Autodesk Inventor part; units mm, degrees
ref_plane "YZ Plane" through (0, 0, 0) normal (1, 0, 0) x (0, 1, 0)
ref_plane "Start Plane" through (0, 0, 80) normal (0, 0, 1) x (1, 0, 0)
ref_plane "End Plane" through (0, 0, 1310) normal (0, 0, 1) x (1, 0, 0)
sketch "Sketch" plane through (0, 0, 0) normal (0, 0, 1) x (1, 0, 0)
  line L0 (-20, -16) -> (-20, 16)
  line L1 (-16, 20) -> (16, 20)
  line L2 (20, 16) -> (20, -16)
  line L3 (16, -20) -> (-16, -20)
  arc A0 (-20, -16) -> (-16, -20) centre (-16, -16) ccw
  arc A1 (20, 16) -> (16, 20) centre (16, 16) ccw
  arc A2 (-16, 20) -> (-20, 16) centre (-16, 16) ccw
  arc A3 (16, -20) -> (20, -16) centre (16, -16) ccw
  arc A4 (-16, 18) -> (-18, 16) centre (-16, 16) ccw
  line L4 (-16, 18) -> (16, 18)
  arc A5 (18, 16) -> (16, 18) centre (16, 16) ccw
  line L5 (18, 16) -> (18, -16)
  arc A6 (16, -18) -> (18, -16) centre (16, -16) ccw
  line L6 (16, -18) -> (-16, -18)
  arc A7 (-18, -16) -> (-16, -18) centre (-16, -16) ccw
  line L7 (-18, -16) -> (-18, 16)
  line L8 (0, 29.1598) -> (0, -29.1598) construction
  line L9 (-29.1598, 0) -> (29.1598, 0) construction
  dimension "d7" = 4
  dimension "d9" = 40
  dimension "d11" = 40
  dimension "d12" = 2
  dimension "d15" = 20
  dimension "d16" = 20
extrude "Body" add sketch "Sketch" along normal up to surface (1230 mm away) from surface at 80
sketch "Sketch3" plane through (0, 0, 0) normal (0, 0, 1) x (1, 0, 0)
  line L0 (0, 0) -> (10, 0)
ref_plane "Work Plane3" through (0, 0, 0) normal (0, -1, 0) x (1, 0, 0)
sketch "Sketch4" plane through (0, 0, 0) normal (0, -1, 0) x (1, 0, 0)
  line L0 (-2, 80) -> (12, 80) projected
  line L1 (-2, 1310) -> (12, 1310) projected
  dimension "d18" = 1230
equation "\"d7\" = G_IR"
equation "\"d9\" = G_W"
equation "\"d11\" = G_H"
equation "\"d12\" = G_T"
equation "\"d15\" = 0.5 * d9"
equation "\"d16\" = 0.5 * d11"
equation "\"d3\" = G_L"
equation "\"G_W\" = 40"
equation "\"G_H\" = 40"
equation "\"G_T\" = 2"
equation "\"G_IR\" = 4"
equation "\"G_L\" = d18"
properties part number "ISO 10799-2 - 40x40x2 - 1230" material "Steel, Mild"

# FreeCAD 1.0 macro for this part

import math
import FreeCAD as App
import Part
import Sketcher
from FreeCAD import Vector

doc = App.newDocument("Part")
body = doc.addObject("PartDesign::Body", "Body")

# Sketch on XY plane
sketch1 = doc.addObject("Sketcher::SketchObject", "Sketch")
body.addObject(sketch1)
sketch1.AttachmentSupport = (doc.XY_Plane, [""])
sketch1.MapMode = "FlatFace"
sketch1.AttachmentOffset = App.Placement(Vector(0, 0, 80), App.Rotation())
sketch1.addGeometry(Part.LineSegment(Vector(-20, 16, 0), Vector(-20, -16, 0)), False)
sketch1.addGeometry(Part.ArcOfCircle(Part.Circle(Vector(-16, -16, 0), Vector(0, 0, 1), 4), math.radians(180), math.radians(270)), False)
sketch1.addGeometry(Part.LineSegment(Vector(-16, -20, 0), Vector(16, -20, 0)), False)
sketch1.addGeometry(Part.ArcOfCircle(Part.Circle(Vector(16, -16, 0), Vector(0, 0, 1), 4), math.radians(-90), math.radians(0)), False)
sketch1.addGeometry(Part.LineSegment(Vector(20, -16, 0), Vector(20, 16, 0)), False)
sketch1.addGeometry(Part.ArcOfCircle(Part.Circle(Vector(16, 16, 0), Vector(0, 0, 1), 4), math.radians(0), math.radians(90)), False)
sketch1.addGeometry(Part.LineSegment(Vector(16, 20, 0), Vector(-16, 20, 0)), False)
sketch1.addGeometry(Part.ArcOfCircle(Part.Circle(Vector(-16, 16, 0), Vector(0, 0, 1), 4), math.radians(90), math.radians(180)), False)
sketch1.addGeometry(Part.ArcOfCircle(Part.Circle(Vector(-16, 16, 0), Vector(0, 0, 1), 2), math.radians(90), math.radians(180)), False)
sketch1.addGeometry(Part.LineSegment(Vector(-16, 18, 0), Vector(16, 18, 0)), False)
sketch1.addGeometry(Part.ArcOfCircle(Part.Circle(Vector(16, 16, 0), Vector(0, 0, 1), 2), math.radians(0), math.radians(90)), False)
sketch1.addGeometry(Part.LineSegment(Vector(18, 16, 0), Vector(18, -16, 0)), False)
sketch1.addGeometry(Part.ArcOfCircle(Part.Circle(Vector(16, -16, 0), Vector(0, 0, 1), 2), math.radians(-90), math.radians(0)), False)
sketch1.addGeometry(Part.LineSegment(Vector(16, -18, 0), Vector(-16, -18, 0)), False)
sketch1.addGeometry(Part.ArcOfCircle(Part.Circle(Vector(-16, -16, 0), Vector(0, 0, 1), 2), math.radians(180), math.radians(270)), False)
sketch1.addGeometry(Part.LineSegment(Vector(-18, -16, 0), Vector(-18, 16, 0)), False)
sketch1.addConstraint(Sketcher.Constraint("Tangent", 0, 2, 1, 1))
sketch1.addConstraint(Sketcher.Constraint("Tangent", 1, 2, 2, 1))
sketch1.addConstraint(Sketcher.Constraint("Tangent", 2, 2, 3, 1))
sketch1.addConstraint(Sketcher.Constraint("Tangent", 3, 2, 4, 1))
sketch1.addConstraint(Sketcher.Constraint("Tangent", 4, 2, 5, 1))
sketch1.addConstraint(Sketcher.Constraint("Tangent", 5, 2, 6, 1))
sketch1.addConstraint(Sketcher.Constraint("Tangent", 6, 2, 7, 1))
sketch1.addConstraint(Sketcher.Constraint("Tangent", 7, 2, 0, 1))
sketch1.addConstraint(Sketcher.Constraint("Tangent", 8, 1, 9, 1))
sketch1.addConstraint(Sketcher.Constraint("Tangent", 9, 2, 10, 2))
sketch1.addConstraint(Sketcher.Constraint("Tangent", 10, 1, 11, 1))
sketch1.addConstraint(Sketcher.Constraint("Tangent", 11, 2, 12, 2))
sketch1.addConstraint(Sketcher.Constraint("Tangent", 12, 1, 13, 1))
sketch1.addConstraint(Sketcher.Constraint("Tangent", 13, 2, 14, 2))
sketch1.addConstraint(Sketcher.Constraint("Tangent", 14, 1, 15, 1))
sketch1.addConstraint(Sketcher.Constraint("Tangent", 15, 2, 8, 2))
sketch1.addConstraint(Sketcher.Constraint("Vertical", 0))
sketch1.addConstraint(Sketcher.Constraint("Horizontal", 2))
sketch1.addConstraint(Sketcher.Constraint("Vertical", 4))
sketch1.addConstraint(Sketcher.Constraint("Horizontal", 6))
sketch1.addConstraint(Sketcher.Constraint("Horizontal", 9))
sketch1.addConstraint(Sketcher.Constraint("Vertical", 11))
sketch1.addConstraint(Sketcher.Constraint("Horizontal", 13))
sketch1.addConstraint(Sketcher.Constraint("Vertical", 15))
sketch1.addConstraint(Sketcher.Constraint("Coincident", 8, 3, 7, 3))
sketch1.addConstraint(Sketcher.Constraint("Coincident", 10, 3, 5, 3))
sketch1.addConstraint(Sketcher.Constraint("Coincident", 12, 3, 3, 3))
sketch1.addConstraint(Sketcher.Constraint("Equal", 1, 3))
sketch1.addConstraint(Sketcher.Constraint("Equal", 3, 5))
sketch1.addConstraint(Sketcher.Constraint("Equal", 5, 7))
sketch1.addConstraint(Sketcher.Constraint("Equal", 12, 14))
sketch1.addConstraint(Sketcher.Constraint("Symmetric", 1, 3, 5, 3, -1, 1))
sketch1.addConstraint(Sketcher.Constraint("Equal", 13, 0))
sketch1.addConstraint(Sketcher.Constraint("Radius", 1, 4.0))
sketch1.addConstraint(Sketcher.Constraint("Radius", 8, 2.0))
sketch1.addConstraint(Sketcher.Constraint("DistanceX", 0, 2, -1, 1, 20.0))
pad1 = doc.addObject("PartDesign::Pad", "Pad")
body.addObject(pad1)
pad1.Profile = sketch1
pad1.Length = 1230

doc.recompute()
